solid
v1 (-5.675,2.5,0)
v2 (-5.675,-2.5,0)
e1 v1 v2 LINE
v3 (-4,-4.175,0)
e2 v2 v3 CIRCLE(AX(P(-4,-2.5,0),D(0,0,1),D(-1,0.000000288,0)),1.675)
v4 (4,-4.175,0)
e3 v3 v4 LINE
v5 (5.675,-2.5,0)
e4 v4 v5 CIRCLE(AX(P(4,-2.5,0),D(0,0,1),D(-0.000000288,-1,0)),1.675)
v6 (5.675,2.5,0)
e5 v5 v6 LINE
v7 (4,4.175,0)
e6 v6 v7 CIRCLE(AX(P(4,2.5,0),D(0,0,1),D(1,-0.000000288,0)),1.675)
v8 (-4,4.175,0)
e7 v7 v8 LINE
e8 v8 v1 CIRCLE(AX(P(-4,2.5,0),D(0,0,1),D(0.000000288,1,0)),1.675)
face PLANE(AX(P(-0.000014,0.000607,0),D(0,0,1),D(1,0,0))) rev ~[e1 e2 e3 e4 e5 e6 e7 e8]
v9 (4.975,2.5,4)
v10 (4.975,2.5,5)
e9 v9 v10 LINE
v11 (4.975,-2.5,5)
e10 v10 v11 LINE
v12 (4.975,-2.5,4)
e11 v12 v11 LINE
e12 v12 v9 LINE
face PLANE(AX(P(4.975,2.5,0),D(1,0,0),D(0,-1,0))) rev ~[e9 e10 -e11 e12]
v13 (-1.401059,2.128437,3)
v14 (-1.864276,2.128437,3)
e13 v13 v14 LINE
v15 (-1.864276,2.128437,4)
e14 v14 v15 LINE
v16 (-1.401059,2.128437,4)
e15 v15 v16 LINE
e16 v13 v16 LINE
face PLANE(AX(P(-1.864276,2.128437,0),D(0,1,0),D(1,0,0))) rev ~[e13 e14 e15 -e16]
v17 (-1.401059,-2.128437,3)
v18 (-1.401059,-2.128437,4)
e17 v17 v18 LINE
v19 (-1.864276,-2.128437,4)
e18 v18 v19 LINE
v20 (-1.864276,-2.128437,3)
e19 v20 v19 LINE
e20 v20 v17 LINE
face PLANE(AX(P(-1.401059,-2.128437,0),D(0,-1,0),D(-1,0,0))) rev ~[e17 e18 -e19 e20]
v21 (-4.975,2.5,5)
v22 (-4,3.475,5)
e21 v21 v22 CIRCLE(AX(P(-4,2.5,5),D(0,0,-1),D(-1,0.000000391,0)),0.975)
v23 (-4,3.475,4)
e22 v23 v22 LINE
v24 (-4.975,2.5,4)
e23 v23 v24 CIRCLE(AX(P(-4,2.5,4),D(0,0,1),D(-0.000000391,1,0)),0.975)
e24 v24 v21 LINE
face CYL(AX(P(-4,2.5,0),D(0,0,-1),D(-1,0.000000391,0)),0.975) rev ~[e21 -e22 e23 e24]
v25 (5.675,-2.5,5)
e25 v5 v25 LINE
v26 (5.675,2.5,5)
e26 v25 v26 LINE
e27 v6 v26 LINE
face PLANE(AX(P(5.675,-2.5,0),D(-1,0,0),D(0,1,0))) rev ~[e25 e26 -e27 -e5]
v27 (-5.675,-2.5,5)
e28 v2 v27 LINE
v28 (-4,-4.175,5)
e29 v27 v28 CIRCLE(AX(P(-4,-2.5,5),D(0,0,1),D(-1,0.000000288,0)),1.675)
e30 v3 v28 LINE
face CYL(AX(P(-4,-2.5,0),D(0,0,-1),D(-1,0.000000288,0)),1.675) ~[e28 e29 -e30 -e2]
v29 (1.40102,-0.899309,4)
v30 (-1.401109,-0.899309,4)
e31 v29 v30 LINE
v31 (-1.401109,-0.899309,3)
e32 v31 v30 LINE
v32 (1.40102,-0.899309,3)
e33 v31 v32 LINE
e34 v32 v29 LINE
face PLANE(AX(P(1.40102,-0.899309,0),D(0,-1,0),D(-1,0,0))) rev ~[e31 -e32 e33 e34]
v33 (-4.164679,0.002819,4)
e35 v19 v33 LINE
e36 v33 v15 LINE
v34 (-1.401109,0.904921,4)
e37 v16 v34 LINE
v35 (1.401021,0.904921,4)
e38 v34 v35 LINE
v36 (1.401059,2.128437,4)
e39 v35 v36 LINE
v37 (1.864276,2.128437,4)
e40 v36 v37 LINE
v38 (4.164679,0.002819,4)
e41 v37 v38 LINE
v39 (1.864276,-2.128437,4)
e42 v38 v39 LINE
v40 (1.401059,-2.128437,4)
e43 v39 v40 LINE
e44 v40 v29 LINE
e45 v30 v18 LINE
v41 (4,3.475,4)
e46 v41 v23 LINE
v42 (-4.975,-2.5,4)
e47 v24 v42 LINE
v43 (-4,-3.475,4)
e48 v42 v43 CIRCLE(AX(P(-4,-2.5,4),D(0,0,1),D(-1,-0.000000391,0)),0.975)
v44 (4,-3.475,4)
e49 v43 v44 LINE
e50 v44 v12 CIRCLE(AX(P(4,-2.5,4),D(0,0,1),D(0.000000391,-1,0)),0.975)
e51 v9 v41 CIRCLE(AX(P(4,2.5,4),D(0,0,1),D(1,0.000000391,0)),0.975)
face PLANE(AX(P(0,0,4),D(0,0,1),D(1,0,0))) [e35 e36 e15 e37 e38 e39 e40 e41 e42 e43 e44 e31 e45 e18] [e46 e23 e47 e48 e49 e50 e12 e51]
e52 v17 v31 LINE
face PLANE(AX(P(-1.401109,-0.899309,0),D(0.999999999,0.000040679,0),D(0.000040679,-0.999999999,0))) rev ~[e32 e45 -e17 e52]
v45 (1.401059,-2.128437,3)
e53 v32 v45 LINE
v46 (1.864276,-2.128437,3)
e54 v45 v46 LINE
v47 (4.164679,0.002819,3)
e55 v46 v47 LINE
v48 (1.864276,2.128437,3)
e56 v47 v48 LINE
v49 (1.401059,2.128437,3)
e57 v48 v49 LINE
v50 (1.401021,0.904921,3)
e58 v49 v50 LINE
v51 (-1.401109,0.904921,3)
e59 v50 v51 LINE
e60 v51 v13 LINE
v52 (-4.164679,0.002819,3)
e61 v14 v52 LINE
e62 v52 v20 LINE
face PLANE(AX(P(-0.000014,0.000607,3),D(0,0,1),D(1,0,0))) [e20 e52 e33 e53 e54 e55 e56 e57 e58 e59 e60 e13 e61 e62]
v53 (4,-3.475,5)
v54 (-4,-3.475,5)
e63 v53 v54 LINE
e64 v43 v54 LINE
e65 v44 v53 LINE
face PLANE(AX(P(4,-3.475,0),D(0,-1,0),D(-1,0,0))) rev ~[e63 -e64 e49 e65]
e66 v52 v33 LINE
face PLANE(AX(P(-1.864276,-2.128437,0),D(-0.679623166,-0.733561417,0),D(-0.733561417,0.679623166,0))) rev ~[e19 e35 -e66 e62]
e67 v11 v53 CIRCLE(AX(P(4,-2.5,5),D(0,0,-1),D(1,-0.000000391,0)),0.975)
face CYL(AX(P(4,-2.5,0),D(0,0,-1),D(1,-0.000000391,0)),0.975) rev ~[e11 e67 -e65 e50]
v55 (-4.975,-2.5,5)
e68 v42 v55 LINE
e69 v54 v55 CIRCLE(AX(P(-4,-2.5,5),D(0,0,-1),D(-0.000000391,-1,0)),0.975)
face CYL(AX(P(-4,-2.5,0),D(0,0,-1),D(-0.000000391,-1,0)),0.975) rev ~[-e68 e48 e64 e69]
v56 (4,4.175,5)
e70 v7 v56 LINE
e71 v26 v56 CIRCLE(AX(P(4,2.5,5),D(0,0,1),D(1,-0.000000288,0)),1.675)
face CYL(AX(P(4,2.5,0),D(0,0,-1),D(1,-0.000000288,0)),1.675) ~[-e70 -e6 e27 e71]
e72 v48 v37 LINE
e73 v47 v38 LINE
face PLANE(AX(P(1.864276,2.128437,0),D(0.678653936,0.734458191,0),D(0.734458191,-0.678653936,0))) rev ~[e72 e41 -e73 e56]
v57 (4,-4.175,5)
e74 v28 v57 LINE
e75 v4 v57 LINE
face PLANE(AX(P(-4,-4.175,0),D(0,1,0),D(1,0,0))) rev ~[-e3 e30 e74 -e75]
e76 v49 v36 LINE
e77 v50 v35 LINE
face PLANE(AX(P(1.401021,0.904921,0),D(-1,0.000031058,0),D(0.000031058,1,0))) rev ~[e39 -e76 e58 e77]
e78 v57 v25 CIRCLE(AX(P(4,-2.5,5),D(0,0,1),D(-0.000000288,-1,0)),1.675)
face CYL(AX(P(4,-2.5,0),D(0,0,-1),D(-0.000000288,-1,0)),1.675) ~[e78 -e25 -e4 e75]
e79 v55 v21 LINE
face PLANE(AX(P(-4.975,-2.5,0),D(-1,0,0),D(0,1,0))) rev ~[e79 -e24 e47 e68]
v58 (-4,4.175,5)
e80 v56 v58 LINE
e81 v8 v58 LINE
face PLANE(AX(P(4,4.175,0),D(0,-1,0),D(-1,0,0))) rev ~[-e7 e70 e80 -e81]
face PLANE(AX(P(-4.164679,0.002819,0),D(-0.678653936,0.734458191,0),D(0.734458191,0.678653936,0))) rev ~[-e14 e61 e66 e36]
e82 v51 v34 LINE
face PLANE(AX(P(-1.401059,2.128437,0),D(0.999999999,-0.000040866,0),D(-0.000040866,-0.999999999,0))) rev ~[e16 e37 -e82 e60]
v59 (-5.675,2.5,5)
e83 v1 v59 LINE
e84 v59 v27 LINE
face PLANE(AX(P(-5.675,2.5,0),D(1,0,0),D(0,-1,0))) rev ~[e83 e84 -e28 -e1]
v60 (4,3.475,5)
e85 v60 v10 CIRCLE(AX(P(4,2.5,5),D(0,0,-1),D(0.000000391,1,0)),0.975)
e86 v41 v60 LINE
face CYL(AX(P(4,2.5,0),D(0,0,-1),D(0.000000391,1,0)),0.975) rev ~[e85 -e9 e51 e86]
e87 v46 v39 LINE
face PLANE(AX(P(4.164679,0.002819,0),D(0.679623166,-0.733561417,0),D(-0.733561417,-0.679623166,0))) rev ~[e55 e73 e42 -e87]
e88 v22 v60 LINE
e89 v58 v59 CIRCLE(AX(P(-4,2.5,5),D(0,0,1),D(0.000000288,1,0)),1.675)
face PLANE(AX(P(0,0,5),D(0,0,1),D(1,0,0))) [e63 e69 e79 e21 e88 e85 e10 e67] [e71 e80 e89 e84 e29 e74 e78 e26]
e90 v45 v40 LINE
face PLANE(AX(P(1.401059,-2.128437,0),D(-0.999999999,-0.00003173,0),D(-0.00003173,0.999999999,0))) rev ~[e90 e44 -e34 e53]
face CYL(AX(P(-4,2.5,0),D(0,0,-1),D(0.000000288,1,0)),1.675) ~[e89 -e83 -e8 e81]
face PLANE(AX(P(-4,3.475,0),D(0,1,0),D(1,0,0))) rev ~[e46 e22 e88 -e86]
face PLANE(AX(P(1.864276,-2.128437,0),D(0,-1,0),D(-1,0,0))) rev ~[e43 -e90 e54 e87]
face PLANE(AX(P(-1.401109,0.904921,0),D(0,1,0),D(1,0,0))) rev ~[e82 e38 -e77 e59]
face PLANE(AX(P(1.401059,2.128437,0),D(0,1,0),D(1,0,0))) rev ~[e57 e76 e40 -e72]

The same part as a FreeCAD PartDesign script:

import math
import FreeCAD as App
import Part
import Sketcher
from FreeCAD import Vector

doc = App.newDocument("Part")
body = doc.addObject("PartDesign::Body", "Body")

# Sketch on XY plane
sketch1 = body.newObject("Sketcher::SketchObject", "Sketch")
sketch1.AttachmentSupport = (doc.getObject("XY_Plane"), [""])
sketch1.MapMode = "FlatFace"
sketch1.addGeometry([
    Part.LineSegment(Vector(-4, -4.2, 0), Vector(4, -4.2, 0)),  # 0
    Part.ArcOfCircle(Part.Circle(Vector(4, -2.5, 0), Vector(0, 0, 1), 1.7), math.radians(-90), math.radians(0)),  # 1
    Part.LineSegment(Vector(5.7, -2.5, 0), Vector(5.7, 2.5, 0)),  # 2
    Part.ArcOfCircle(Part.Circle(Vector(4, 2.5, 0), Vector(0, 0, 1), 1.7), math.radians(0), math.radians(90)),  # 3
    Part.LineSegment(Vector(4, 4.2, 0), Vector(-4, 4.2, 0)),  # 4
    Part.ArcOfCircle(Part.Circle(Vector(-4, 2.5, 0), Vector(0, 0, 1), 1.7), math.radians(90), math.radians(180)),  # 5
    Part.LineSegment(Vector(-5.7, 2.5, 0), Vector(-5.7, -2.5, 0)),  # 6
    Part.ArcOfCircle(Part.Circle(Vector(-4, -2.5, 0), Vector(0, 0, 1), 1.7), math.radians(180), math.radians(270)),  # 7
    Part.LineSegment(Vector(5, 2.5, 0), Vector(5, -2.5, 0)),  # 8
    Part.ArcOfCircle(Part.Circle(Vector(4, -2.5, 0), Vector(0, 0, 1), 1), math.radians(-90), math.radians(0)),  # 9
    Part.LineSegment(Vector(4, -3.5, 0), Vector(-4, -3.5, 0)),  # 10
    Part.ArcOfCircle(Part.Circle(Vector(-4, -2.5, 0), Vector(0, 0, 1), 1), math.radians(-180), math.radians(-90)),  # 11
    Part.LineSegment(Vector(-5, -2.5, 0), Vector(-5, 2.5, 0)),  # 12
    Part.ArcOfCircle(Part.Circle(Vector(-4, 2.5, 0), Vector(0, 0, 1), 1), math.radians(90), math.radians(180)),  # 13
    Part.LineSegment(Vector(-4, 3.5, 0), Vector(4, 3.5, 0)),  # 14
    Part.ArcOfCircle(Part.Circle(Vector(4, 2.5, 0), Vector(0, 0, 1), 1), math.radians(0), math.radians(90)),  # 15
], False)
sketch1.addConstraint([
    Sketcher.Constraint("Tangent", 0, 2, 1, 1),
    Sketcher.Constraint("Tangent", 1, 2, 2, 1),
    Sketcher.Constraint("Tangent", 2, 2, 3, 1),
    Sketcher.Constraint("Tangent", 3, 2, 4, 1),
    Sketcher.Constraint("Tangent", 4, 2, 5, 1),
    Sketcher.Constraint("Tangent", 5, 2, 6, 1),
    Sketcher.Constraint("Tangent", 6, 2, 7, 1),
    Sketcher.Constraint("Tangent", 7, 2, 0, 1),
    Sketcher.Constraint("Tangent", 8, 2, 9, 2),
    Sketcher.Constraint("Tangent", 9, 1, 10, 1),
    Sketcher.Constraint("Tangent", 10, 2, 11, 2),
    Sketcher.Constraint("Tangent", 11, 1, 12, 1),
    Sketcher.Constraint("Tangent", 12, 2, 13, 2),
    Sketcher.Constraint("Tangent", 13, 1, 14, 1),
    Sketcher.Constraint("Tangent", 14, 2, 15, 2),
    Sketcher.Constraint("Tangent", 15, 1, 8, 1),
    Sketcher.Constraint("Horizontal", 0),
    Sketcher.Constraint("Vertical", 2),
    Sketcher.Constraint("Horizontal", 4),
    Sketcher.Constraint("Vertical", 6),
    Sketcher.Constraint("Vertical", 8),
    Sketcher.Constraint("Horizontal", 10),
    Sketcher.Constraint("Vertical", 12),
    Sketcher.Constraint("Horizontal", 14),
    Sketcher.Constraint("Coincident", 9, 3, 1, 3),
    Sketcher.Constraint("Coincident", 11, 3, 7, 3),
    Sketcher.Constraint("Coincident", 13, 3, 5, 3),
    Sketcher.Constraint("Equal", 1, 3),
    Sketcher.Constraint("Equal", 3, 5),
    Sketcher.Constraint("Equal", 5, 7),
    Sketcher.Constraint("Equal", 13, 15),
    Sketcher.Constraint("Symmetric", 1, 3, 5, 3, -1, 1),
    Sketcher.Constraint("DistanceX", 0, 1, 0, 2, 8.0),
    Sketcher.Constraint("DistanceY", 2, 1, 2, 2, 5.0),
    Sketcher.Constraint("Radius", 1, 1.675),
    Sketcher.Constraint("Radius", 9, 0.975),
])
pad1 = body.newObject("PartDesign::Pad", "Pad")
pad1.Profile = sketch1
pad1.Length = 5

# Sketch on XY plane
sketch2 = body.newObject("Sketcher::SketchObject", "Sketch001")
sketch2.AttachmentSupport = (doc.getObject("XY_Plane"), [""])
sketch2.MapMode = "FlatFace"
sketch2.addGeometry([
    Part.LineSegment(Vector(-4, -3.48, 0), Vector(4, -3.48, 0)),  # 0
    Part.ArcOfCircle(Part.Circle(Vector(4, -2.5, 0), Vector(0, 0, 1), 0.98), math.radians(-90), math.radians(0)),  # 1
    Part.LineSegment(Vector(4.97, -2.5, 0), Vector(4.97, 2.5, 0)),  # 2
    Part.ArcOfCircle(Part.Circle(Vector(4, 2.5, 0), Vector(0, 0, 1), 0.98), math.radians(0), math.radians(90)),  # 3
    Part.LineSegment(Vector(4, 3.48, 0), Vector(-4, 3.48, 0)),  # 4
    Part.ArcOfCircle(Part.Circle(Vector(-4, 2.5, 0), Vector(0, 0, 1), 0.98), math.radians(90), math.radians(180)),  # 5
    Part.LineSegment(Vector(-4.97, 2.5, 0), Vector(-4.97, -2.5, 0)),  # 6
    Part.ArcOfCircle(Part.Circle(Vector(-4, -2.5, 0), Vector(0, 0, 1), 0.98), math.radians(-180), math.radians(-90)),  # 7
    Part.LineSegment(Vector(1.4, -0.9, 0), Vector(-1.4, -0.9, 0)),  # 8
    Part.LineSegment(Vector(-1.4, -0.9, 0), Vector(-1.4, -2.13, 0)),  # 9
    Part.LineSegment(Vector(-1.4, -2.13, 0), Vector(-1.86, -2.13, 0)),  # 10
    Part.LineSegment(Vector(-1.86, -2.13, 0), Vector(-4.16, 0, 0)),  # 11
    Part.LineSegment(Vector(-4.16, 0, 0), Vector(-1.86, 2.13, 0)),  # 12
    Part.LineSegment(Vector(-1.86, 2.13, 0), Vector(-1.4, 2.13, 0)),  # 13
    Part.LineSegment(Vector(-1.4, 2.13, 0), Vector(-1.4, 0.9, 0)),  # 14
    Part.LineSegment(Vector(-1.4, 0.9, 0), Vector(1.4, 0.9, 0)),  # 15
    Part.LineSegment(Vector(1.4, 0.9, 0), Vector(1.4, 2.13, 0)),  # 16
    Part.LineSegment(Vector(1.4, 2.13, 0), Vector(1.86, 2.13, 0)),  # 17
    Part.LineSegment(Vector(1.86, 2.13, 0), Vector(4.16, 0, 0)),  # 18
    Part.LineSegment(Vector(4.16, 0, 0), Vector(1.86, -2.13, 0)),  # 19
    Part.LineSegment(Vector(1.86, -2.13, 0), Vector(1.4, -2.13, 0)),  # 20
    Part.LineSegment(Vector(1.4, -2.13, 0), Vector(1.4, -0.9, 0)),  # 21
], False)
sketch2.addConstraint([
    Sketcher.Constraint("Tangent", 0, 2, 1, 1),
    Sketcher.Constraint("Tangent", 1, 2, 2, 1),
    Sketcher.Constraint("Tangent", 2, 2, 3, 1),
    Sketcher.Constraint("Tangent", 3, 2, 4, 1),
    Sketcher.Constraint("Tangent", 4, 2, 5, 1),
    Sketcher.Constraint("Tangent", 5, 2, 6, 1),
    Sketcher.Constraint("Tangent", 6, 2, 7, 1),
    Sketcher.Constraint("Tangent", 7, 2, 0, 1),
    Sketcher.Constraint("Coincident", 8, 2, 9, 1),
    Sketcher.Constraint("Coincident", 9, 2, 10, 1),
    Sketcher.Constraint("Coincident", 10, 2, 11, 1),
    Sketcher.Constraint("Coincident", 11, 2, 12, 1),
    Sketcher.Constraint("Coincident", 12, 2, 13, 1),
    Sketcher.Constraint("Coincident", 13, 2, 14, 1),
    Sketcher.Constraint("Coincident", 14, 2, 15, 1),
    Sketcher.Constraint("Coincident", 15, 2, 16, 1),
    Sketcher.Constraint("Coincident", 16, 2, 17, 1),
    Sketcher.Constraint("Coincident", 17, 2, 18, 1),
    Sketcher.Constraint("Coincident", 18, 2, 19, 1),
    Sketcher.Constraint("Coincident", 19, 2, 20, 1),
    Sketcher.Constraint("Coincident", 20, 2, 21, 1),
    Sketcher.Constraint("Coincident", 21, 2, 8, 1),
    Sketcher.Constraint("Horizontal", 0),
    Sketcher.Constraint("Vertical", 2),
    Sketcher.Constraint("Horizontal", 4),
    Sketcher.Constraint("Vertical", 6),
    Sketcher.Constraint("Horizontal", 8),
    Sketcher.Constraint("Horizontal", 10),
    Sketcher.Constraint("Horizontal", 13),
    Sketcher.Constraint("Horizontal", 15),
    Sketcher.Constraint("Horizontal", 17),
    Sketcher.Constraint("Horizontal", 20),
    Sketcher.Constraint("Equal", 1, 3),
    Sketcher.Constraint("Equal", 3, 5),
    Sketcher.Constraint("Equal", 5, 7),
    Sketcher.Constraint("Symmetric", 1, 3, 5, 3, -1, 1),
    Sketcher.Constraint("Symmetric", 9, 2, 16, 2, -1, 1),
    Sketcher.Constraint("Symmetric", 12, 2, 19, 2, -1, 1),
    Sketcher.Constraint("Symmetric", 13, 2, 16, 2, -2),
    Sketcher.Constraint("Symmetric", 11, 2, 18, 2, -2),
    Sketcher.Constraint("Vertical", 10, 2, 12, 2),
    Sketcher.Constraint("Vertical", 8, 2, 14, 2),
    Sketcher.Constraint("Vertical", 17, 2, 19, 2),
    Sketcher.Constraint("Vertical", 16, 2, 20, 2),
    Sketcher.Constraint("Vertical", 15, 2, 21, 2),
    Sketcher.Constraint("DistanceX", 0, 1, 0, 2, 8.0),
    Sketcher.Constraint("DistanceY", 2, 1, 2, 2, 5.0),
    Sketcher.Constraint("Radius", 1, 0.975),
    Sketcher.Constraint("DistanceX", 8, 2, 8, 1, 2.802129),
    Sketcher.Constraint("DistanceY", 11, 2, 14, 2, 0.902102),
    Sketcher.Constraint("Distance", 9, 1.229128),
    Sketcher.Constraint("Distance", 12, 3.132109),
    Sketcher.Constraint("DistanceX", 10, 2, 10, 1, 0.463217),
    Sketcher.Constraint("DistanceX", 8, 2, -1, 1, 1.401109),
    Sketcher.Constraint("DistanceY", 8, 2, -1, 1, 0.899309),
    Sketcher.Constraint("DistanceX", 9, 2, -1, 1, 1.401059),
    Sketcher.Constraint("DistanceX", 11, 2, -1, 1, 4.164679),
])
pad2 = body.newObject("PartDesign::Pad", "Pad001")
pad2.Profile = sketch2
pad2.Length = 4

# Sketch on XY plane
sketch3 = body.newObject("Sketcher::SketchObject", "Sketch002")
sketch3.AttachmentSupport = (doc.getObject("XY_Plane"), [""])
sketch3.MapMode = "FlatFace"
sketch3.addGeometry([
    Part.LineSegment(Vector(-1.86, -2.13, 0), Vector(-1.4, -2.13, 0)),  # 0
    Part.LineSegment(Vector(-1.4, -2.13, 0), Vector(-1.4, -0.9, 0)),  # 1
    Part.LineSegment(Vector(-1.4, -0.9, 0), Vector(1.4, -0.9, 0)),  # 2
    Part.LineSegment(Vector(1.4, -0.9, 0), Vector(1.4, -2.13, 0)),  # 3
    Part.LineSegment(Vector(1.4, -2.13, 0), Vector(1.86, -2.13, 0)),  # 4
    Part.LineSegment(Vector(1.86, -2.13, 0), Vector(4.16, 0, 0)),  # 5
    Part.LineSegment(Vector(4.16, 0, 0), Vector(1.86, 2.13, 0)),  # 6
    Part.LineSegment(Vector(1.86, 2.13, 0), Vector(1.4, 2.13, 0)),  # 7
    Part.LineSegment(Vector(1.4, 2.13, 0), Vector(1.4, 0.9, 0)),  # 8
    Part.LineSegment(Vector(1.4, 0.9, 0), Vector(-1.4, 0.9, 0)),  # 9
    Part.LineSegment(Vector(-1.4, 0.9, 0), Vector(-1.4, 2.13, 0)),  # 10
    Part.LineSegment(Vector(-1.4, 2.13, 0), Vector(-1.86, 2.13, 0)),  # 11
    Part.LineSegment(Vector(-1.86, 2.13, 0), Vector(-4.16, 0, 0)),  # 12
    Part.LineSegment(Vector(-4.16, 0, 0), Vector(-1.86, -2.13, 0)),  # 13
], False)
sketch3.addConstraint([
    Sketcher.Constraint("Coincident", 0, 2, 1, 1),
    Sketcher.Constraint("Coincident", 1, 2, 2, 1),
    Sketcher.Constraint("Coincident", 2, 2, 3, 1),
    Sketcher.Constraint("Coincident", 3, 2, 4, 1),
    Sketcher.Constraint("Coincident", 4, 2, 5, 1),
    Sketcher.Constraint("Coincident", 5, 2, 6, 1),
    Sketcher.Constraint("Coincident", 6, 2, 7, 1),
    Sketcher.Constraint("Coincident", 7, 2, 8, 1),
    Sketcher.Constraint("Coincident", 8, 2, 9, 1),
    Sketcher.Constraint("Coincident", 9, 2, 10, 1),
    Sketcher.Constraint("Coincident", 10, 2, 11, 1),
    Sketcher.Constraint("Coincident", 11, 2, 12, 1),
    Sketcher.Constraint("Coincident", 12, 2, 13, 1),
    Sketcher.Constraint("Coincident", 13, 2, 0, 1),
    Sketcher.Constraint("Horizontal", 0),
    Sketcher.Constraint("Horizontal", 2),
    Sketcher.Constraint("Horizontal", 4),
    Sketcher.Constraint("Horizontal", 7),
    Sketcher.Constraint("Horizontal", 9),
    Sketcher.Constraint("Horizontal", 11),
    Sketcher.Constraint("Symmetric", 0, 2, 7, 2, -1, 1),
    Sketcher.Constraint("Symmetric", 3, 2, 10, 2, -1, 1),
    Sketcher.Constraint("Symmetric", 0, 2, 3, 2, -2),
    Sketcher.Constraint("Symmetric", 5, 2, 12, 2, -2),
    Sketcher.Constraint("Vertical", 4, 2, 6, 2),
    Sketcher.Constraint("Vertical", 2, 2, 8, 2),
    Sketcher.Constraint("Vertical", 1, 2, 9, 2),
    Sketcher.Constraint("Vertical", 11, 2, 13, 2),
    Sketcher.Constraint("Equal", 0, 4),
    Sketcher.Constraint("DistanceX", 2, 1, 2, 2, 2.802129),
    Sketcher.Constraint("DistanceY", 5, 2, 8, 2, 0.902102),
    Sketcher.Constraint("Distance", 1, 1.229128),
    Sketcher.Constraint("Distance", 6, 3.132109),
    Sketcher.Constraint("DistanceX", 0, 1, 0, 2, 0.463217),
    Sketcher.Constraint("DistanceX", 0, 2, -1, 1, 1.401059),
    Sketcher.Constraint("DistanceX", 1, 2, -1, 1, 1.401109),
    Sketcher.Constraint("DistanceY", 1, 2, -1, 1, 0.899309),
    Sketcher.Constraint("DistanceX", -1, 1, 5, 2, 4.164679),
])
pad3 = body.newObject("PartDesign::Pad", "Pad002")
pad3.Profile = sketch3
pad3.Length = 3

doc.recompute()
